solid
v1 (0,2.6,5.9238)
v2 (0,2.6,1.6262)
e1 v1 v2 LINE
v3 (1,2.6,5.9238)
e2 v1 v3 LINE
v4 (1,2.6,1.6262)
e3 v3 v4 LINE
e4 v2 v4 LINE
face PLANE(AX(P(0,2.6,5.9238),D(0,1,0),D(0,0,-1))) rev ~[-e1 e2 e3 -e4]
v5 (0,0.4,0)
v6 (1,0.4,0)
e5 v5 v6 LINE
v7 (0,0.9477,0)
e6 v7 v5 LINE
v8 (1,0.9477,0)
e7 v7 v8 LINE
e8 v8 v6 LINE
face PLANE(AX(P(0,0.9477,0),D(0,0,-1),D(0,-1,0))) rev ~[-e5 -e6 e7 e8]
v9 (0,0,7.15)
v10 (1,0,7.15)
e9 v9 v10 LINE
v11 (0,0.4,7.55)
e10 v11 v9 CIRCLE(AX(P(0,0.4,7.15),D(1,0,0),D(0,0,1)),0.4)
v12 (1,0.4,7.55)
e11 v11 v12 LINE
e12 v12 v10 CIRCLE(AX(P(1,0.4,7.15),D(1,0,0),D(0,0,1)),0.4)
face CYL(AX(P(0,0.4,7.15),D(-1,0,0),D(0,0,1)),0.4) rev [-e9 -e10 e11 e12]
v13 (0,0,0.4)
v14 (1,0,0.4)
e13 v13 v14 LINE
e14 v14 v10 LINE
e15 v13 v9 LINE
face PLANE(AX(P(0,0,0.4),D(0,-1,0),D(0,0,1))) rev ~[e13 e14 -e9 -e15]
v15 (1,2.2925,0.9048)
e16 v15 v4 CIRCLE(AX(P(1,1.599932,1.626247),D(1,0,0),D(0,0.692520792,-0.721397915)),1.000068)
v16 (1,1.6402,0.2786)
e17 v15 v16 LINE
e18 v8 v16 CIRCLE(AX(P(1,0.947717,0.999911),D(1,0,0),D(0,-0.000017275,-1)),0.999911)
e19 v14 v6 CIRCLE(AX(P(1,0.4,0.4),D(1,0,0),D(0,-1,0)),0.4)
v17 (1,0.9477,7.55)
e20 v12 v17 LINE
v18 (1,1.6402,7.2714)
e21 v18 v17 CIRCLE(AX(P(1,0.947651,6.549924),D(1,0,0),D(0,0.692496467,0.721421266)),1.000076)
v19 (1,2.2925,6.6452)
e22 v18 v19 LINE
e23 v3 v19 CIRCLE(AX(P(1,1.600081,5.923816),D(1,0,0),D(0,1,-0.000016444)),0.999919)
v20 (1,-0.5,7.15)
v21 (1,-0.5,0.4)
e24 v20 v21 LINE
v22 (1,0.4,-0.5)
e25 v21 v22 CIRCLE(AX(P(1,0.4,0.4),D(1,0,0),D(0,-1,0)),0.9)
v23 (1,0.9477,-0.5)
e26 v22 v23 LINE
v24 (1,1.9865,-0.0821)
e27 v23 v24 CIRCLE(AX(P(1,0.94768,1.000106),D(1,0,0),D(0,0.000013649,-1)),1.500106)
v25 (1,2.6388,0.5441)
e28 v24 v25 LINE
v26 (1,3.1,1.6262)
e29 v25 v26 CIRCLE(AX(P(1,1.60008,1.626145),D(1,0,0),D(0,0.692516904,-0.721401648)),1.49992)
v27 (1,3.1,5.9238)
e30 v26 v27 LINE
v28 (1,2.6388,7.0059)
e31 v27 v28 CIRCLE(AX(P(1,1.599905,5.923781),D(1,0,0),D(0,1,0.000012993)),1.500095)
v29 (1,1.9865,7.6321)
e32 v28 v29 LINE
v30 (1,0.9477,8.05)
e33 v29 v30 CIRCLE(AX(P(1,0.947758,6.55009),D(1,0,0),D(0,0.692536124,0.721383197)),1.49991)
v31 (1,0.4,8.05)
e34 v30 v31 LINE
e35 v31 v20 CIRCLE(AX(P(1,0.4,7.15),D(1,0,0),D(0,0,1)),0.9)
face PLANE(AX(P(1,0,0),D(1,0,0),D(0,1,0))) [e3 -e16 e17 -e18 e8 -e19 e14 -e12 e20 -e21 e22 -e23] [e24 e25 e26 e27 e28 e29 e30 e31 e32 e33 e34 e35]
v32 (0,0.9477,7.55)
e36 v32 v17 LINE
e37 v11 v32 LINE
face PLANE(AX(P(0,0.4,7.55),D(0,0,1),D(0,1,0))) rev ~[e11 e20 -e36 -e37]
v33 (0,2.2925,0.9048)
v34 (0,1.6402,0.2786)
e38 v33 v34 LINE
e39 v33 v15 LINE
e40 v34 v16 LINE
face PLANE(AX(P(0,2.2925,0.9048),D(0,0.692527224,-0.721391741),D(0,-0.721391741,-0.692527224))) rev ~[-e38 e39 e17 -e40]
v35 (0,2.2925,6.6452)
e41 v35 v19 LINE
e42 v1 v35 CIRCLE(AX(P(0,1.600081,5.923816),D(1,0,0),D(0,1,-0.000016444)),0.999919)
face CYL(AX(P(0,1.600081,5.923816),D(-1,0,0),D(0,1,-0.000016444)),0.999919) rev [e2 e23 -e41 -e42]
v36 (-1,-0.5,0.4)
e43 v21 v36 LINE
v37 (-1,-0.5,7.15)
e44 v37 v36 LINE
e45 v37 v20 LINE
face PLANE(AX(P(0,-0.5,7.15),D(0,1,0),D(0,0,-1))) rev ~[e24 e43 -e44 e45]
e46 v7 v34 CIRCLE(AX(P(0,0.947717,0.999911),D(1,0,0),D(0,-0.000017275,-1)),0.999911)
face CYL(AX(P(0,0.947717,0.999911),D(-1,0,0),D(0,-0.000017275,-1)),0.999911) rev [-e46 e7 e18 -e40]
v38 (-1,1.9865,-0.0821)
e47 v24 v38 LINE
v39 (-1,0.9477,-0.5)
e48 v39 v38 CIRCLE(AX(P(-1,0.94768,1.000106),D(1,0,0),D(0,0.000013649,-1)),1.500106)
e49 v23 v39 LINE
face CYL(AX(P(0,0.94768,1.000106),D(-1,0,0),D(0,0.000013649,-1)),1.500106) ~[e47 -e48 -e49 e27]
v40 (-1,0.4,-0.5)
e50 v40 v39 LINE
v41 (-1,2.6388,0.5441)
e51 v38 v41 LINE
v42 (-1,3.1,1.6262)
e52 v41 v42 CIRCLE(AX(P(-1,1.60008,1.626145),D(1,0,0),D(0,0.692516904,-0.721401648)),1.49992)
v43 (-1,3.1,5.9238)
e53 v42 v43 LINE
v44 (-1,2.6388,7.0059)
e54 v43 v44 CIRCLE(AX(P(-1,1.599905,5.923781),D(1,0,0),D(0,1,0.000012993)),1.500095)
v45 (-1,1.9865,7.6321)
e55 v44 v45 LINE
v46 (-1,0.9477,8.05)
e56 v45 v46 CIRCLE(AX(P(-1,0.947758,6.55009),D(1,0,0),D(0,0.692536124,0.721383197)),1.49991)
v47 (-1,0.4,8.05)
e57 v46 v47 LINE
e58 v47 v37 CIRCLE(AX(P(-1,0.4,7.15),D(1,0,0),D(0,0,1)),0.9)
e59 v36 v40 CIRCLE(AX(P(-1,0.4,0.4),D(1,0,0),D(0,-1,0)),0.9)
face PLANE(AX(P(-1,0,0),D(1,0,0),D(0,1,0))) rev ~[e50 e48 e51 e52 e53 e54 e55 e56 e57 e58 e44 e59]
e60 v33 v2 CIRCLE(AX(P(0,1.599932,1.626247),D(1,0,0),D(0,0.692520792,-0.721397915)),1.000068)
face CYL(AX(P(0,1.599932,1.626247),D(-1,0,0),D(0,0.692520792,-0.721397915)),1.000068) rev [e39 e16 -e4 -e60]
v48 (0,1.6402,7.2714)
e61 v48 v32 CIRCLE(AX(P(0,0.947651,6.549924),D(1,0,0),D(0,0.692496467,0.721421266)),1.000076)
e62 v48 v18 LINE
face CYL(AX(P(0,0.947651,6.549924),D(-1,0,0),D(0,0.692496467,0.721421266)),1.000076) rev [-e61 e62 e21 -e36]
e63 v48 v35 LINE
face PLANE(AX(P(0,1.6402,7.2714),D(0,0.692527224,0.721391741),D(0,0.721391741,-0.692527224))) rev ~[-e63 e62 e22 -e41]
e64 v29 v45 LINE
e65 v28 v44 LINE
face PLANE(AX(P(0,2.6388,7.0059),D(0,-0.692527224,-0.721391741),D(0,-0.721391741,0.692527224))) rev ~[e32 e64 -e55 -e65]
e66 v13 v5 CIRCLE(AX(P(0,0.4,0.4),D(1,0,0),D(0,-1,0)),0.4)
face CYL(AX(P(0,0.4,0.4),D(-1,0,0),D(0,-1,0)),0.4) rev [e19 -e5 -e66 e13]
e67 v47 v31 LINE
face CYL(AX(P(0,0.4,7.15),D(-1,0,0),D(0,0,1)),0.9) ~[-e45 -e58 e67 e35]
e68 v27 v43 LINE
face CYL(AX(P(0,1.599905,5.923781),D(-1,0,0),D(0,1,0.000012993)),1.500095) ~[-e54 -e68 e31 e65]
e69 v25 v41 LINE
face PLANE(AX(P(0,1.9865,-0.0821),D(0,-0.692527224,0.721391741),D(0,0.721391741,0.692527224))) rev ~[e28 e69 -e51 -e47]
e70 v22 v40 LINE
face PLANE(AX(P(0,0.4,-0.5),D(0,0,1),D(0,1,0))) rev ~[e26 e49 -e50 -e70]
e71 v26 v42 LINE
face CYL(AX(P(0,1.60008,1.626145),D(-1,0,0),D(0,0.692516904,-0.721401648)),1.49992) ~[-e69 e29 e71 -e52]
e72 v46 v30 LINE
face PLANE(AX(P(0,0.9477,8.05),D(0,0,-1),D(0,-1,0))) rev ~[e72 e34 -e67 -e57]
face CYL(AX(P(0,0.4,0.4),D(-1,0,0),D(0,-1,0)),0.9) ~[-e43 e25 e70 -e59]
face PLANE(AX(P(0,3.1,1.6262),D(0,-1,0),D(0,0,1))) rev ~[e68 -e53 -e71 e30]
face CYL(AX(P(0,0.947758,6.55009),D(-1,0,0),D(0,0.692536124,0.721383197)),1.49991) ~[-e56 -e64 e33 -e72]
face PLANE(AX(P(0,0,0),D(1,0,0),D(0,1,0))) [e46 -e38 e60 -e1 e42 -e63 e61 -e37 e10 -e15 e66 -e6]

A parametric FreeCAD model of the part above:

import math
import FreeCAD as App
import Part
import Sketcher

V = App.Vector
Q = App.Units.Quantity

doc = App.newDocument("Part")
body = doc.addObject("PartDesign::Body", "Body")

# Sketch on YZ plane
sketch1 = body.newObject("Sketcher::SketchObject", "Sketch")
sketch1.AttachmentSupport = (doc.getObject("YZ_Plane"), [""])
sketch1.MapMode = "FlatFace"
sketch1.addGeometry([
    Part.ArcOfCircle(Part.Circle(V(0.95, 6.55, 0), V(0, 0, 1), 1.5), math.radians(46), math.radians(90)),  # 0
    Part.LineSegment(V(0.95, 8.05, 0), V(0.4, 8.05, 0)),  # 1
    Part.ArcOfCircle(Part.Circle(V(0.4, 7.15, 0), V(0, 0, 1), 0.9), math.radians(90), math.radians(180)),  # 2
    Part.LineSegment(V(-0.5, 7.15, 0), V(-0.5, 0.4, 0)),  # 3
    Part.ArcOfCircle(Part.Circle(V(0.4, 0.4, 0), V(0, 0, 1), 0.9), math.radians(180), math.radians(270)),  # 4
    Part.LineSegment(V(0.4, -0.5, 0), V(0.95, -0.5, 0)),  # 5
    Part.ArcOfCircle(Part.Circle(V(0.95, 1, 0), V(0, 0, 1), 1.5), math.radians(-90), math.radians(-46)),  # 6
    Part.LineSegment(V(1.99, -0.08, 0), V(2.64, 0.54, 0)),  # 7
    Part.ArcOfCircle(Part.Circle(V(1.6, 1.63, 0), V(0, 0, 1), 1.5), math.radians(-46), math.radians(0)),  # 8
    Part.LineSegment(V(3.1, 1.63, 0), V(3.1, 5.92, 0)),  # 9
    Part.ArcOfCircle(Part.Circle(V(1.6, 5.92, 0), V(0, 0, 1), 1.5), math.radians(0), math.radians(46)),  # 10
    Part.LineSegment(V(2.64, 7.01, 0), V(1.99, 7.63, 0)),  # 11
    Part.ArcOfCircle(Part.Circle(V(0.4, 7.15, 0), V(0, 0, 1), 0.4), math.radians(90), math.radians(180)),  # 12
    Part.LineSegment(V(0.4, 7.55, 0), V(0.95, 7.55, 0)),  # 13
    Part.ArcOfCircle(Part.Circle(V(0.95, 6.55, 0), V(0, 0, 1), 1), math.radians(46), math.radians(90)),  # 14
    Part.LineSegment(V(1.64, 7.27, 0), V(2.29, 6.65, 0)),  # 15
    Part.ArcOfCircle(Part.Circle(V(1.6, 5.92, 0), V(0, 0, 1), 1), math.radians(0), math.radians(46)),  # 16
    Part.LineSegment(V(2.6, 5.92, 0), V(2.6, 1.63, 0)),  # 17
    Part.ArcOfCircle(Part.Circle(V(1.6, 1.63, 0), V(0, 0, 1), 1), math.radians(-46), math.radians(0)),  # 18
    Part.LineSegment(V(2.29, 0.9, 0), V(1.64, 0.28, 0)),  # 19
    Part.ArcOfCircle(Part.Circle(V(0.95, 1, 0), V(0, 0, 1), 1), math.radians(-90), math.radians(-46)),  # 20
    Part.LineSegment(V(0.95, 0, 0), V(0.4, 0, 0)),  # 21
    Part.ArcOfCircle(Part.Circle(V(0.4, 0.4, 0), V(0, 0, 1), 0.4), math.radians(180), math.radians(270)),  # 22
    Part.LineSegment(V(0, 0.4, 0), V(0, 7.15, 0)),  # 23
], False)
sketch1.addConstraint([
    Sketcher.Constraint("Tangent", 0, 2, 1, 1),
    Sketcher.Constraint("Tangent", 1, 2, 2, 1),
    Sketcher.Constraint("Tangent", 2, 2, 3, 1),
    Sketcher.Constraint("Tangent", 3, 2, 4, 1),
    Sketcher.Constraint("Tangent", 4, 2, 5, 1),
    Sketcher.Constraint("Tangent", 5, 2, 6, 1),
    Sketcher.Constraint("Tangent", 6, 2, 7, 1),
    Sketcher.Constraint("Tangent", 7, 2, 8, 1),
    Sketcher.Constraint("Tangent", 8, 2, 9, 1),
    Sketcher.Constraint("Tangent", 9, 2, 10, 1),
    Sketcher.Constraint("Tangent", 10, 2, 11, 1),
    Sketcher.Constraint("Tangent", 11, 2, 0, 1),
    Sketcher.Constraint("Tangent", 12, 1, 13, 1),
    Sketcher.Constraint("Tangent", 13, 2, 14, 2),
    Sketcher.Constraint("Tangent", 14, 1, 15, 1),
    Sketcher.Constraint("Tangent", 15, 2, 16, 2),
    Sketcher.Constraint("Tangent", 16, 1, 17, 1),
    Sketcher.Constraint("Tangent", 17, 2, 18, 2),
    Sketcher.Constraint("Tangent", 18, 1, 19, 1),
    Sketcher.Constraint("Tangent", 19, 2, 20, 2),
    Sketcher.Constraint("Tangent", 20, 1, 21, 1),
    Sketcher.Constraint("Tangent", 21, 2, 22, 2),
    Sketcher.Constraint("Tangent", 22, 1, 23, 1),
    Sketcher.Constraint("Tangent", 23, 2, 12, 2),
    Sketcher.Constraint("Horizontal", 1),
    Sketcher.Constraint("Vertical", 3),
    Sketcher.Constraint("Horizontal", 5),
    Sketcher.Constraint("Vertical", 9),
    Sketcher.Constraint("Horizontal", 13),
    Sketcher.Constraint("Vertical", 17),
    Sketcher.Constraint("Horizontal", 21),
    Sketcher.Constraint("Vertical", 23),
    Sketcher.Constraint("Coincident", 12, 3, 2, 3),
    Sketcher.Constraint("Coincident", 14, 3, 0, 3),
    Sketcher.Constraint("Coincident", 16, 3, 10, 3),
    Sketcher.Constraint("Coincident", 18, 3, 8, 3),
    Sketcher.Constraint("Coincident", 20, 3, 6, 3),
    Sketcher.Constraint("Coincident", 22, 3, 4, 3),
    Sketcher.Constraint("Equal", 2, 4),
    Sketcher.Constraint("Equal", 0, 6),
    Sketcher.Constraint("Equal", 6, 8),
    Sketcher.Constraint("Equal", 8, 10),
    Sketcher.Constraint("Equal", 14, 16),
    Sketcher.Constraint("PointOnObject", 20, 1, -1),
    Sketcher.Constraint("PointOnObject", 22, 1, -2),
    Sketcher.Constraint("Vertical", 0, 3, 6, 3),
    Sketcher.Constraint("Vertical", 7, 2, 10, 2),
    Sketcher.Constraint("Radius", 14, Q("1 mm")),
    Sketcher.Constraint("DistanceX", 2, 2, -1, 1, Q("0.5 mm")),
    Sketcher.Constraint("Radius", 2, Q("0.9 mm")),
    Sketcher.Constraint("DistanceY", 3, 2, 3, 1, Q("6.75 mm")),
    Sketcher.Constraint("DistanceX", -1, 1, 8, 3, Q("1.6 mm")),
    Sketcher.Constraint("Angle", 7, Q("43.8305 deg")),
    Sketcher.Constraint("DistanceX", 1, 2, 1, 1, Q("0.5477 mm")),
])
pad1 = body.newObject("PartDesign::Pad", "Pad")
pad1.Profile = sketch1
pad1.Length = 1

# Sketch on YZ plane
sketch2 = body.newObject("Sketcher::SketchObject", "Sketch001")
sketch2.AttachmentSupport = (doc.getObject("YZ_Plane"), [""])
sketch2.MapMode = "FlatFace"
sketch2.addGeometry([
    Part.ArcOfCircle(Part.Circle(V(0.9, 6.5, 0), V(0, 0, 1), 1.5), math.radians(46), math.radians(90)),  # 0
    Part.LineSegment(V(0.9, 8.1, 0), V(0.4, 8.1, 0)),  # 1
    Part.ArcOfCircle(Part.Circle(V(0.4, 7.2, 0), V(0, 0, 1), 0.9), math.radians(90), math.radians(180)),  # 2
    Part.LineSegment(V(-0.5, 7.2, 0), V(-0.5, 0.4, 0)),  # 3
    Part.ArcOfCircle(Part.Circle(V(0.4, 0.4, 0), V(0, 0, 1), 0.9), math.radians(180), math.radians(270)),  # 4
    Part.LineSegment(V(0.4, -0.5, 0), V(0.9, -0.5, 0)),  # 5
    Part.ArcOfCircle(Part.Circle(V(0.9, 1, 0), V(0, 0, 1), 1.5), math.radians(-90), math.radians(-46)),  # 6
    Part.LineSegment(V(2, -0.1, 0), V(2.6, 0.5, 0)),  # 7
    Part.ArcOfCircle(Part.Circle(V(1.6, 1.6, 0), V(0, 0, 1), 1.5), math.radians(-46), math.radians(0)),  # 8
    Part.LineSegment(V(3.1, 1.6, 0), V(3.1, 5.9, 0)),  # 9
    Part.ArcOfCircle(Part.Circle(V(1.6, 5.9, 0), V(0, 0, 1), 1.5), math.radians(0), math.radians(46)),  # 10
    Part.LineSegment(V(2.6, 7, 0), V(2, 7.6, 0)),  # 11
], False)
sketch2.addConstraint([
    Sketcher.Constraint("Tangent", 0, 2, 1, 1),
    Sketcher.Constraint("Tangent", 1, 2, 2, 1),
    Sketcher.Constraint("Tangent", 2, 2, 3, 1),
    Sketcher.Constraint("Tangent", 3, 2, 4, 1),
    Sketcher.Constraint("Tangent", 4, 2, 5, 1),
    Sketcher.Constraint("Tangent", 5, 2, 6, 1),
    Sketcher.Constraint("Tangent", 6, 2, 7, 1),
    Sketcher.Constraint("Tangent", 7, 2, 8, 1),
    Sketcher.Constraint("Tangent", 8, 2, 9, 1),
    Sketcher.Constraint("Tangent", 9, 2, 10, 1),
    Sketcher.Constraint("Tangent", 10, 2, 11, 1),
    Sketcher.Constraint("Tangent", 11, 2, 0, 1),
    Sketcher.Constraint("Horizontal", 1),
    Sketcher.Constraint("Vertical", 3),
    Sketcher.Constraint("Horizontal", 5),
    Sketcher.Constraint("Vertical", 9),
    Sketcher.Constraint("Equal", 2, 4),
    Sketcher.Constraint("Equal", 0, 6),
    Sketcher.Constraint("Equal", 6, 8),
    Sketcher.Constraint("Equal", 8, 10),
    Sketcher.Constraint("Vertical", 0, 3, 6, 3),
    Sketcher.Constraint("Vertical", 7, 2, 10, 2),
    Sketcher.Constraint("DistanceX", 2, 2, -1, 1, Q("0.5 mm")),
    Sketcher.Constraint("DistanceY", 4, 2, -1, 1, Q("0.5 mm")),
    Sketcher.Constraint("Radius", 0, Q("1.5 mm")),
    Sketcher.Constraint("Radius", 2, Q("0.9 mm")),
    Sketcher.Constraint("DistanceY", 3, 2, 3, 1, Q("6.75 mm")),
    Sketcher.Constraint("DistanceX", -1, 1, 8, 3, Q("1.6 mm")),
    Sketcher.Constraint("Angle", 7, Q("43.8305 deg")),
    Sketcher.Constraint("DistanceX", 1, 2, 1, 1, Q("0.5477 mm")),
])
pad2 = body.newObject("PartDesign::Pad", "Pad001")
pad2.Profile = sketch2
pad2.Length = 1
pad2.Reversed = True

doc.recompute()
